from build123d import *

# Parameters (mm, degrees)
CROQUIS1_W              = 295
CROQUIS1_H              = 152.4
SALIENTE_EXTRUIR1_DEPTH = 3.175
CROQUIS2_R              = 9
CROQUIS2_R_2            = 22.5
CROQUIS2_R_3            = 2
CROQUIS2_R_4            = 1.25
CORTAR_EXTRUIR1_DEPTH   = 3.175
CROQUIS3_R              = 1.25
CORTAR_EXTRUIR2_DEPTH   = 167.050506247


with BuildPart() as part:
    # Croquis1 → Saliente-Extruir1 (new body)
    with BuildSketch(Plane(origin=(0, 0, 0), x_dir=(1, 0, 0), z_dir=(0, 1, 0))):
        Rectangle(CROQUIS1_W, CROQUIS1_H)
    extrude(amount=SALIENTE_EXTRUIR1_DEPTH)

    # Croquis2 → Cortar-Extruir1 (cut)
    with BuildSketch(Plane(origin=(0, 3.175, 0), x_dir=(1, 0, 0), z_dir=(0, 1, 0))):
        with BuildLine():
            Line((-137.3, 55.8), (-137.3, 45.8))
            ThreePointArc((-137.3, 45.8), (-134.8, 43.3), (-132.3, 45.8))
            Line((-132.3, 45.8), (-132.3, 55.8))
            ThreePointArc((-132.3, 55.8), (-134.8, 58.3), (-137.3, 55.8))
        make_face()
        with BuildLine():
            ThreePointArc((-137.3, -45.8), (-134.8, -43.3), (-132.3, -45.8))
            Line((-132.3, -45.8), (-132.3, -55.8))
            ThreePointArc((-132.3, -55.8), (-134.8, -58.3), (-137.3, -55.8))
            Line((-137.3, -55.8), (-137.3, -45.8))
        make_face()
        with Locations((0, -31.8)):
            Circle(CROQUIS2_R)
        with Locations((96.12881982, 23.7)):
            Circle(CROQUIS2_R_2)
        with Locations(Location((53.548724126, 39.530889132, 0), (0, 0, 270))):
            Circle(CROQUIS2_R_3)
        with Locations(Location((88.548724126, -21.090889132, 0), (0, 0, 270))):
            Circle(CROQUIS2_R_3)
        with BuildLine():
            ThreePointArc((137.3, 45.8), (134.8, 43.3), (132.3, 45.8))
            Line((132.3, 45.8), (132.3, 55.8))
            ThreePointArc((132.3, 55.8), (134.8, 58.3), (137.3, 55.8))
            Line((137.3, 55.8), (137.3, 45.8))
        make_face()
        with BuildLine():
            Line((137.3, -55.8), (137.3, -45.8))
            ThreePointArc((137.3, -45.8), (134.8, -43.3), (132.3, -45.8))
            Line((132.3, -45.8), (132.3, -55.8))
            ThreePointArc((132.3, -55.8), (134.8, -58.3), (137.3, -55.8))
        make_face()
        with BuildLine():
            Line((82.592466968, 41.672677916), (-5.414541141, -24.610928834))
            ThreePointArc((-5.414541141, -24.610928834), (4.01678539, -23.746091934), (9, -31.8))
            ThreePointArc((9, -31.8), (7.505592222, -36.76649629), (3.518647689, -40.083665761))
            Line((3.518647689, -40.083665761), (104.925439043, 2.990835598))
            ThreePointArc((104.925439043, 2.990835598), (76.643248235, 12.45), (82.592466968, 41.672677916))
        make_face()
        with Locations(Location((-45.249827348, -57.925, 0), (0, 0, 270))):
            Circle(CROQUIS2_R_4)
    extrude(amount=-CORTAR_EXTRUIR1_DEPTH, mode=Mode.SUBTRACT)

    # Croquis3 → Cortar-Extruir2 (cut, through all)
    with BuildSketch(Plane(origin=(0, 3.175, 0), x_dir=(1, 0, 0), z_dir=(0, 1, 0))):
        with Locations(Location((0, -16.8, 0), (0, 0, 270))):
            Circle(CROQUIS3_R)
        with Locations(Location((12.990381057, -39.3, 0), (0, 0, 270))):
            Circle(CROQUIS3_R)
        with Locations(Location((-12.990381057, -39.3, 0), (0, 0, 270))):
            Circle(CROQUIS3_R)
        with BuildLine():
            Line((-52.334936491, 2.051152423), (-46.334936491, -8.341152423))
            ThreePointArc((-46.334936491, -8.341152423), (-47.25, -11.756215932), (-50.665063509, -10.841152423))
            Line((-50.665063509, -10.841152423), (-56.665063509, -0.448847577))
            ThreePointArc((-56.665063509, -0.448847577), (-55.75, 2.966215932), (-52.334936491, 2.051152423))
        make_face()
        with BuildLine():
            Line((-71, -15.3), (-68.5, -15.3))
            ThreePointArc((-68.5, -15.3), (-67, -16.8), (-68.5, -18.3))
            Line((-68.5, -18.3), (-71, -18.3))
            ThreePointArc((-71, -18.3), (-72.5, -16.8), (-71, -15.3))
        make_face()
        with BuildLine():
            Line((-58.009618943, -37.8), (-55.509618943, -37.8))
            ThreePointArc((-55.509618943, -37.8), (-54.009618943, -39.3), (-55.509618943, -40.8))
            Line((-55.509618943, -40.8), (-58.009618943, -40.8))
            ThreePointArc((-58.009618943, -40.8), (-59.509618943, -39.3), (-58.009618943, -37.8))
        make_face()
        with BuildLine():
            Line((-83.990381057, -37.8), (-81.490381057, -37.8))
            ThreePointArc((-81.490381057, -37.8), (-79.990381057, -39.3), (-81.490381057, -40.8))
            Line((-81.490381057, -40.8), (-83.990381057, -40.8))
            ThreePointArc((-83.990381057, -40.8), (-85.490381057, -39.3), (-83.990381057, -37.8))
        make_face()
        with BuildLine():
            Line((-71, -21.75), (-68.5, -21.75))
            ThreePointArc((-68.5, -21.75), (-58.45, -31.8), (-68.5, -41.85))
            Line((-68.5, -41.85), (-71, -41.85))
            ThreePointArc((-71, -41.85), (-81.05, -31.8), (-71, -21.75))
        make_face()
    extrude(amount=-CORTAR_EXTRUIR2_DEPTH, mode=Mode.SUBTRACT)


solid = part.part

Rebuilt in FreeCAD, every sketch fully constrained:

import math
import FreeCAD as App
import Part
import Sketcher
Q = App.Units.Quantity


def add_polygon(sketch, points):
    """Adds a closed chain of lines whose ends are joined by coincident constraints."""
    first, n = sketch.GeometryCount, len(points)
    for a, b in zip(points, points[1:] + points[:1]):
        sketch.addGeometry(Part.LineSegment(App.Vector(*a, 0), App.Vector(*b, 0)), False)
    for i in range(n):
        sketch.addConstraint(Sketcher.Constraint("Coincident", first + i, 2, first + (i + 1) % n, 1))

doc = App.newDocument("Part")
params = doc.addObject("Spreadsheet::Sheet", "Params")
for row, (alias, value) in enumerate([
    ("sketch1_width", "295 mm"),
    ("sketch1_height", "152.4 mm"),
    ("pad1_length", "3.175 mm"),
    ("sketch2_diameter", "4 mm"),
    ("sketch2_radius", "9 mm"),
    ("sketch2_diameter2", "2.5 mm"),
    ("sketch2_radius2", "2.5 mm"),
    ("sketch2_radius3", "22.5 mm"),
    ("pocket1_length", "3.175 mm"),
    ("sketch3_diameter", "2.5 mm"),
    ("sketch3_radius", "2.5 mm"),
    ("sketch3_radius2", "1.5 mm"),
    ("sketch3_radius3", "10.05 mm"),
    ("sketch3_length", "12 mm"),
], start=1):
    params.set(f"A{row}", alias)
    params.set(f"B{row}", "=" + value)
    params.setAlias(f"B{row}", alias)

body = doc.addObject("PartDesign::Body", "Body")

# Sketch on XZ plane
sketch1 = body.newObject("Sketcher::SketchObject", "Sketch")
sketch1.AttachmentSupport = (doc.getObject("XZ_Plane"), [""])
sketch1.MapMode = "FlatFace"
add_polygon(sketch1, [(-148, -76), (-148, 76), (148, 76), (148, -76)])  # lines 0-3
sketch1.addConstraint(Sketcher.Constraint("Vertical", 0))
sketch1.addConstraint(Sketcher.Constraint("Horizontal", 1))
sketch1.addConstraint(Sketcher.Constraint("Vertical", 2))
sketch1.addConstraint(Sketcher.Constraint("Horizontal", 3))
sketch1.addConstraint(Sketcher.Constraint("Symmetric", 0, 2, 2, 2, -1, 1))
sketch1.addConstraint(Sketcher.Constraint("DistanceX", 1, 1, 1, 2, 295.0))
sketch1.addConstraint(Sketcher.Constraint("DistanceY", 0, 1, 0, 2, 152.4))
sketch1.setExpression("Constraints[9]", "Params.sketch1_width")
sketch1.setExpression("Constraints[10]", "Params.sketch1_height")
pad1 = body.newObject("PartDesign::Pad", "Pad")
pad1.Profile = sketch1
pad1.setExpression("Length", "Params.pad1_length")
pad1.Reversed = True

# Sketch on XZ plane
sketch2 = body.newObject("Sketcher::SketchObject", "Sketch001")
sketch2.AttachmentSupport = (doc.getObject("XZ_Plane"), [""])
sketch2.MapMode = "FlatFace"
sketch2.AttachmentOffset = App.Placement(App.Vector(0, 0, -3.175), App.Rotation())
sketch2.addGeometry(Part.LineSegment(App.Vector(-137.3, -55.8, 0), App.Vector(-137.3, -45.8, 0)), False)
sketch2.addGeometry(Part.ArcOfCircle(Part.Circle(App.Vector(-134.8, -45.8, 0), App.Vector(0, 0, 1), 2.5), math.radians(0), math.radians(180)), False)
sketch2.addGeometry(Part.LineSegment(App.Vector(-132.3, -45.8, 0), App.Vector(-132.3, -55.8, 0)), False)
sketch2.addGeometry(Part.ArcOfCircle(Part.Circle(App.Vector(-134.8, -55.8, 0), App.Vector(0, 0, 1), 2.5), math.radians(180), math.radians(360)), False)
sketch2.addGeometry(Part.ArcOfCircle(Part.Circle(App.Vector(-134.8, 45.8, 0), App.Vector(0, 0, 1), 2.5), math.radians(180), math.radians(360)), False)
sketch2.addGeometry(Part.LineSegment(App.Vector(-137.3, 45.8, 0), App.Vector(-137.3, 55.8, 0)), False)
sketch2.addGeometry(Part.ArcOfCircle(Part.Circle(App.Vector(-134.8, 55.8, 0), App.Vector(0, 0, 1), 2.5), math.radians(0), math.radians(180)), False)
sketch2.addGeometry(Part.LineSegment(App.Vector(-132.3, 55.8, 0), App.Vector(-132.3, 45.8, 0)), False)
sketch2.addGeometry(Part.ArcOfCircle(Part.Circle(App.Vector(0, 31.8, 0), App.Vector(0, 0, 1), 9), math.radians(67), math.radians(233)), False)
sketch2.addGeometry(Part.LineSegment(App.Vector(3.5, 40.1, 0), App.Vector(104.9, -3, 0)), False)
sketch2.addGeometry(Part.ArcOfCircle(Part.Circle(App.Vector(96.1, -23.7, 0), App.Vector(0, 0, 1), 22.5), math.radians(-127), math.radians(67)), False)
sketch2.addGeometry(Part.LineSegment(App.Vector(82.6, -41.7, 0), App.Vector(-5.4, 24.6, 0)), False)
sketch2.addGeometry(Part.Circle(App.Vector(53.5, -39.5, 0), App.Vector(0, 0, 1), 2), False)
sketch2.addGeometry(Part.Circle(App.Vector(88.5, 21.1, 0), App.Vector(0, 0, 1), 2), False)
sketch2.addGeometry(Part.ArcOfCircle(Part.Circle(App.Vector(134.8, -45.8, 0), App.Vector(0, 0, 1), 2.5), math.radians(0), math.radians(180)), False)
sketch2.addGeometry(Part.LineSegment(App.Vector(137.3, -45.8, 0), App.Vector(137.3, -55.8, 0)), False)
sketch2.addGeometry(Part.ArcOfCircle(Part.Circle(App.Vector(134.8, -55.8, 0), App.Vector(0, 0, 1), 2.5), math.radians(180), math.radians(360)), False)
sketch2.addGeometry(Part.LineSegment(App.Vector(132.3, -55.8, 0), App.Vector(132.3, -45.8, 0)), False)
sketch2.addGeometry(Part.LineSegment(App.Vector(137.3, 55.8, 0), App.Vector(137.3, 45.8, 0)), False)
sketch2.addGeometry(Part.ArcOfCircle(Part.Circle(App.Vector(134.8, 45.8, 0), App.Vector(0, 0, 1), 2.5), math.radians(180), math.radians(360)), False)
sketch2.addGeometry(Part.LineSegment(App.Vector(132.3, 45.8, 0), App.Vector(132.3, 55.8, 0)), False)
sketch2.addGeometry(Part.ArcOfCircle(Part.Circle(App.Vector(134.8, 55.8, 0), App.Vector(0, 0, 1), 2.5), math.radians(0), math.radians(180)), False)
sketch2.addGeometry(Part.Circle(App.Vector(-45.2, 57.9, 0), App.Vector(0, 0, 1), 1.2), False)
sketch2.addConstraint(Sketcher.Constraint("Tangent", 0, 2, 1, 2))
sketch2.addConstraint(Sketcher.Constraint("Tangent", 1, 1, 2, 1))
sketch2.addConstraint(Sketcher.Constraint("Tangent", 2, 2, 3, 2))
sketch2.addConstraint(Sketcher.Constraint("Tangent", 3, 1, 0, 1))
sketch2.addConstraint(Sketcher.Constraint("Tangent", 4, 1, 5, 1))
sketch2.addConstraint(Sketcher.Constraint("Tangent", 5, 2, 6, 2))
sketch2.addConstraint(Sketcher.Constraint("Tangent", 6, 1, 7, 1))
sketch2.addConstraint(Sketcher.Constraint("Tangent", 7, 2, 4, 2))
sketch2.addConstraint(Sketcher.Constraint("Tangent", 8, 1, 9, 1))
sketch2.addConstraint(Sketcher.Constraint("Tangent", 9, 2, 10, 2))
sketch2.addConstraint(Sketcher.Constraint("Tangent", 10, 1, 11, 1))
sketch2.addConstraint(Sketcher.Constraint("Tangent", 11, 2, 8, 2))
sketch2.addConstraint(Sketcher.Constraint("Tangent", 14, 1, 15, 1))
sketch2.addConstraint(Sketcher.Constraint("Tangent", 15, 2, 16, 2))
sketch2.addConstraint(Sketcher.Constraint("Tangent", 16, 1, 17, 1))
sketch2.addConstraint(Sketcher.Constraint("Tangent", 17, 2, 14, 2))
sketch2.addConstraint(Sketcher.Constraint("Tangent", 18, 2, 19, 2))
sketch2.addConstraint(Sketcher.Constraint("Tangent", 19, 1, 20, 1))
sketch2.addConstraint(Sketcher.Constraint("Tangent", 20, 2, 21, 2))
sketch2.addConstraint(Sketcher.Constraint("Tangent", 21, 1, 18, 1))
sketch2.addConstraint(Sketcher.Constraint("Vertical", 0))
sketch2.addConstraint(Sketcher.Constraint("Vertical", 2))
sketch2.addConstraint(Sketcher.Constraint("Vertical", 5))
sketch2.addConstraint(Sketcher.Constraint("Vertical", 7))
sketch2.addConstraint(Sketcher.Constraint("Vertical", 15))
sketch2.addConstraint(Sketcher.Constraint("Vertical", 17))
sketch2.addConstraint(Sketcher.Constraint("Vertical", 18))
sketch2.addConstraint(Sketcher.Constraint("Vertical", 20))
sketch2.addConstraint(Sketcher.Constraint("Equal", 3, 4))
sketch2.addConstraint(Sketcher.Constraint("Equal", 12, 13))
sketch2.addConstraint(Sketcher.Constraint("Equal", 6, 14))
sketch2.addConstraint(Sketcher.Constraint("Equal", 16, 19))
sketch2.addConstraint(Sketcher.Constraint("Symmetric", 4, 3, 14, 3, -1, 1))
sketch2.addConstraint(Sketcher.Constraint("Symmetric", 1, 3, 19, 3, -1, 1))
sketch2.addConstraint(Sketcher.Constraint("Symmetric", 1, 3, 14, 3, -2))
sketch2.addConstraint(Sketcher.Constraint("PointOnObject", 8, 3, -2))
sketch2.addConstraint(Sketcher.Constraint("Horizontal", 3, 3, 16, 3))
sketch2.addConstraint(Sketcher.Constraint("Horizontal", 6, 3, 21, 3))
sketch2.addConstraint(Sketcher.Constraint("Equal", 2, 5))
sketch2.addConstraint(Sketcher.Constraint("Diameter", 12, 4.0))
sketch2.addConstraint(Sketcher.Constraint("Radius", 8, 9.0))
sketch2.addConstraint(Sketcher.Constraint("Diameter", 22, 2.5))
sketch2.addConstraint(Sketcher.Constraint("Radius", 1, 2.5))
sketch2.addConstraint(Sketcher.Constraint("Radius", 10, 22.5))
sketch2.addConstraint(Sketcher.Constraint("DistanceY", 0, 1, 0, 2, 10.0))
sketch2.addConstraint(Sketcher.Constraint("DistanceY", 8, 3, 4, 3, 14.0))
sketch2.addConstraint(Sketcher.Constraint("DistanceX", 12, 3, 13, 3, 35.0))
sketch2.addConstraint(Sketcher.Constraint("DistanceX", 1, 3, -1, 1, 134.8))
sketch2.addConstraint(Sketcher.Constraint("DistanceY", 1, 3, -1, 1, 45.8))
sketch2.addConstraint(Sketcher.Constraint("DistanceY", 10, 3, -1, 1, 23.7))
sketch2.addConstraint(Sketcher.Constraint("DistanceY", -1, 1, 22, 3, 57.925))
sketch2.addConstraint(Sketcher.Constraint("DistanceX", -1, 1, 10, 3, 96.12882))
sketch2.addConstraint(Sketcher.Constraint("DistanceY", 12, 3, -1, 1, 39.530889))
sketch2.addConstraint(Sketcher.Constraint("DistanceY", -1, 1, 13, 3, 21.090889))
sketch2.addConstraint(Sketcher.Constraint("DistanceX", 22, 3, 12, 3, 98.798551))
sketch2.addConstraint(Sketcher.Constraint("DistanceX", -1, 1, 12, 3, 53.548724))
sketch2.setExpression("Constraints[39]", "Params.sketch2_diameter")
sketch2.setExpression("Constraints[40]", "Params.sketch2_radius")
sketch2.setExpression("Constraints[41]", "Params.sketch2_diameter2")
sketch2.setExpression("Constraints[42]", "Params.sketch2_radius2")
sketch2.setExpression("Constraints[43]", "Params.sketch2_radius3")
pocket1 = body.newObject("PartDesign::Pocket", "Pocket")
pocket1.Profile = sketch2
pocket1.setExpression("Length", "Params.pocket1_length")
pocket1.Reversed = True

# Sketch on XZ plane
sketch3 = body.newObject("Sketcher::SketchObject", "Sketch002")
sketch3.AttachmentSupport = (doc.getObject("XZ_Plane"), [""])
sketch3.MapMode = "FlatFace"
sketch3.AttachmentOffset = App.Placement(App.Vector(0, 0, -3.175), App.Rotation())
sketch3.addGeometry(Part.Circle(App.Vector(0, 16.8, 0), App.Vector(0, 0, 1), 1.2), False)
sketch3.addGeometry(Part.Circle(App.Vector(13, 39.3, 0), App.Vector(0, 0, 1), 1.2), False)
sketch3.addGeometry(Part.Circle(App.Vector(-13, 39.3, 0), App.Vector(0, 0, 1), 1.2), False)
sketch3.addGeometry(Part.LineSegment(App.Vector(-46.3, 8.3, 0), App.Vector(-52.3, -2.1, 0)), False)
sketch3.addGeometry(Part.ArcOfCircle(Part.Circle(App.Vector(-54.5, -0.8, 0), App.Vector(0, 0, 1), 2.5), math.radians(150), math.radians(330)), False)
sketch3.addGeometry(Part.LineSegment(App.Vector(-56.7, 0.4, 0), App.Vector(-50.7, 10.8, 0)), False)
sketch3.addGeometry(Part.ArcOfCircle(Part.Circle(App.Vector(-48.5, 9.6, 0), App.Vector(0, 0, 1), 2.5), math.radians(-30), math.radians(150)), False)
sketch3.addGeometry(Part.LineSegment(App.Vector(-68.5, 15.3, 0), App.Vector(-71, 15.3, 0)), False)
sketch3.addGeometry(Part.ArcOfCircle(Part.Circle(App.Vector(-71, 16.8, 0), App.Vector(0, 0, 1), 1.5), math.radians(90), math.radians(270)), False)
sketch3.addGeometry(Part.LineSegment(App.Vector(-71, 18.3, 0), App.Vector(-68.5, 18.3, 0)), False)
sketch3.addGeometry(Part.ArcOfCircle(Part.Circle(App.Vector(-68.5, 16.8, 0), App.Vector(0, 0, 1), 1.5), math.radians(-90), math.radians(90)), False)
sketch3.addGeometry(Part.LineSegment(App.Vector(-55.5, 37.8, 0), App.Vector(-58, 37.8, 0)), False)
sketch3.addGeometry(Part.ArcOfCircle(Part.Circle(App.Vector(-58, 39.3, 0), App.Vector(0, 0, 1), 1.5), math.radians(90), math.radians(270)), False)
sketch3.addGeometry(Part.LineSegment(App.Vector(-58, 40.8, 0), App.Vector(-55.5, 40.8, 0)), False)
sketch3.addGeometry(Part.ArcOfCircle(Part.Circle(App.Vector(-55.5, 39.3, 0), App.Vector(0, 0, 1), 1.5), math.radians(-90), math.radians(90)), False)
sketch3.addGeometry(Part.LineSegment(App.Vector(-81.5, 37.8, 0), App.Vector(-84, 37.8, 0)), False)
sketch3.addGeometry(Part.ArcOfCircle(Part.Circle(App.Vector(-84, 39.3, 0), App.Vector(0, 0, 1), 1.5), math.radians(90), math.radians(270)), False)
sketch3.addGeometry(Part.LineSegment(App.Vector(-84, 40.8, 0), App.Vector(-81.5, 40.8, 0)), False)
sketch3.addGeometry(Part.ArcOfCircle(Part.Circle(App.Vector(-81.5, 39.3, 0), App.Vector(0, 0, 1), 1.5), math.radians(-90), math.radians(90)), False)
sketch3.addGeometry(Part.LineSegment(App.Vector(-68.5, 21.8, 0), App.Vector(-71, 21.8, 0)), False)
sketch3.addGeometry(Part.ArcOfCircle(Part.Circle(App.Vector(-71, 31.8, 0), App.Vector(0, 0, 1), 10.1), math.radians(90), math.radians(270)), False)
sketch3.addGeometry(Part.LineSegment(App.Vector(-71, 41.9, 0), App.Vector(-68.5, 41.9, 0)), False)
sketch3.addGeometry(Part.ArcOfCircle(Part.Circle(App.Vector(-68.5, 31.8, 0), App.Vector(0, 0, 1), 10.1), math.radians(-90), math.radians(90)), False)
sketch3.addConstraint(Sketcher.Constraint("Tangent", 3, 2, 4, 2))
sketch3.addConstraint(Sketcher.Constraint("Tangent", 4, 1, 5, 1))
sketch3.addConstraint(Sketcher.Constraint("Tangent", 5, 2, 6, 2))
sketch3.addConstraint(Sketcher.Constraint("Tangent", 6, 1, 3, 1))
sketch3.addConstraint(Sketcher.Constraint("Tangent", 7, 2, 8, 2))
sketch3.addConstraint(Sketcher.Constraint("Tangent", 8, 1, 9, 1))
sketch3.addConstraint(Sketcher.Constraint("Tangent", 9, 2, 10, 2))
sketch3.addConstraint(Sketcher.Constraint("Tangent", 10, 1, 7, 1))
sketch3.addConstraint(Sketcher.Constraint("Tangent", 11, 2, 12, 2))
sketch3.addConstraint(Sketcher.Constraint("Tangent", 12, 1, 13, 1))
sketch3.addConstraint(Sketcher.Constraint("Tangent", 13, 2, 14, 2))
sketch3.addConstraint(Sketcher.Constraint("Tangent", 14, 1, 11, 1))
sketch3.addConstraint(Sketcher.Constraint("Tangent", 15, 2, 16, 2))
sketch3.addConstraint(Sketcher.Constraint("Tangent", 16, 1, 17, 1))
sketch3.addConstraint(Sketcher.Constraint("Tangent", 17, 2, 18, 2))
sketch3.addConstraint(Sketcher.Constraint("Tangent", 18, 1, 15, 1))
sketch3.addConstraint(Sketcher.Constraint("Tangent", 19, 2, 20, 2))
sketch3.addConstraint(Sketcher.Constraint("Tangent", 20, 1, 21, 1))
sketch3.addConstraint(Sketcher.Constraint("Tangent", 21, 2, 22, 2))
sketch3.addConstraint(Sketcher.Constraint("Tangent", 22, 1, 19, 1))
sketch3.addConstraint(Sketcher.Constraint("Horizontal", 7))
sketch3.addConstraint(Sketcher.Constraint("Horizontal", 9))
sketch3.addConstraint(Sketcher.Constraint("Horizontal", 11))
sketch3.addConstraint(Sketcher.Constraint("Horizontal", 13))
sketch3.addConstraint(Sketcher.Constraint("Horizontal", 15))
sketch3.addConstraint(Sketcher.Constraint("Horizontal", 17))
sketch3.addConstraint(Sketcher.Constraint("Horizontal", 19))
sketch3.addConstraint(Sketcher.Constraint("Horizontal", 21))
sketch3.addConstraint(Sketcher.Constraint("Equal", 0, 1))
sketch3.addConstraint(Sketcher.Constraint("Equal", 1, 2))
sketch3.addConstraint(Sketcher.Constraint("Equal", 4, 6))
sketch3.addConstraint(Sketcher.Constraint("Equal", 10, 12))
sketch3.addConstraint(Sketcher.Constraint("Equal", 14, 16))
sketch3.addConstraint(Sketcher.Constraint("Symmetric", 1, 3, 2, 3, -2))
sketch3.addConstraint(Sketcher.Constraint("PointOnObject", 0, 3, -2))
sketch3.addConstraint(Sketcher.Constraint("Horizontal", 0, 3, 8, 3))
sketch3.addConstraint(Sketcher.Constraint("Horizontal", 2, 3, 12, 3))
sketch3.addConstraint(Sketcher.Constraint("Horizontal", 14, 3, 16, 3))
sketch3.addConstraint(Sketcher.Constraint("Vertical", 8, 3, 20, 3))
sketch3.addConstraint(Sketcher.Constraint("Vertical", 10, 3, 22, 3))
sketch3.addConstraint(Sketcher.Constraint("Equal", 9, 11))
sketch3.addConstraint(Sketcher.Constraint("Equal", 13, 15))
sketch3.addConstraint(Sketcher.Constraint("Diameter", 0, 2.5))
sketch3.addConstraint(Sketcher.Constraint("Radius", 4, 2.5))
sketch3.addConstraint(Sketcher.Constraint("Radius", 8, 1.5))
sketch3.addConstraint(Sketcher.Constraint("Angle", 3, Q("-120 deg")))
sketch3.addConstraint(Sketcher.Constraint("Radius", 20, 10.05))
sketch3.addConstraint(Sketcher.Constraint("Distance", 3, 12.0))
sketch3.addConstraint(Sketcher.Constraint("DistanceX", 7, 2, 7, 1, 2.5))
sketch3.addConstraint(Sketcher.Constraint("DistanceX", 8, 3, -1, 1, 71.0))
sketch3.addConstraint(Sketcher.Constraint("DistanceX", 10, 3, 6, 3, 20.0))
sketch3.addConstraint(Sketcher.Constraint("DistanceY", 8, 3, 20, 3, 15.0))
sketch3.addConstraint(Sketcher.Constraint("DistanceY", 22, 3, 11, 2, 6.0))
sketch3.addConstraint(Sketcher.Constraint("DistanceY", -1, 1, 0, 3, 16.8))
sketch3.addConstraint(Sketcher.Constraint("DistanceX", -1, 1, 1, 3, 12.990381))
sketch3.addConstraint(Sketcher.Constraint("DistanceX", 12, 3, -1, 1, 58.009619))
sketch3.addConstraint(Sketcher.Constraint("DistanceX", 16, 3, -1, 1, 83.990381))
sketch3.addConstraint(Sketcher.Constraint("DistanceY", 4, 3, -1, 1, 0.801152))
sketch3.setExpression("Constraints[42]", "Params.sketch3_diameter")
sketch3.setExpression("Constraints[43]", "Params.sketch3_radius")
sketch3.setExpression("Constraints[44]", "Params.sketch3_radius2")
sketch3.setExpression("Constraints[46]", "Params.sketch3_radius3")
sketch3.setExpression("Constraints[47]", "Params.sketch3_length")
pocket2 = body.newObject("PartDesign::Pocket", "Pocket001")
pocket2.Profile = sketch3
pocket2.Type = "ThroughAll"
pocket2.Reversed = True

doc.recompute()
